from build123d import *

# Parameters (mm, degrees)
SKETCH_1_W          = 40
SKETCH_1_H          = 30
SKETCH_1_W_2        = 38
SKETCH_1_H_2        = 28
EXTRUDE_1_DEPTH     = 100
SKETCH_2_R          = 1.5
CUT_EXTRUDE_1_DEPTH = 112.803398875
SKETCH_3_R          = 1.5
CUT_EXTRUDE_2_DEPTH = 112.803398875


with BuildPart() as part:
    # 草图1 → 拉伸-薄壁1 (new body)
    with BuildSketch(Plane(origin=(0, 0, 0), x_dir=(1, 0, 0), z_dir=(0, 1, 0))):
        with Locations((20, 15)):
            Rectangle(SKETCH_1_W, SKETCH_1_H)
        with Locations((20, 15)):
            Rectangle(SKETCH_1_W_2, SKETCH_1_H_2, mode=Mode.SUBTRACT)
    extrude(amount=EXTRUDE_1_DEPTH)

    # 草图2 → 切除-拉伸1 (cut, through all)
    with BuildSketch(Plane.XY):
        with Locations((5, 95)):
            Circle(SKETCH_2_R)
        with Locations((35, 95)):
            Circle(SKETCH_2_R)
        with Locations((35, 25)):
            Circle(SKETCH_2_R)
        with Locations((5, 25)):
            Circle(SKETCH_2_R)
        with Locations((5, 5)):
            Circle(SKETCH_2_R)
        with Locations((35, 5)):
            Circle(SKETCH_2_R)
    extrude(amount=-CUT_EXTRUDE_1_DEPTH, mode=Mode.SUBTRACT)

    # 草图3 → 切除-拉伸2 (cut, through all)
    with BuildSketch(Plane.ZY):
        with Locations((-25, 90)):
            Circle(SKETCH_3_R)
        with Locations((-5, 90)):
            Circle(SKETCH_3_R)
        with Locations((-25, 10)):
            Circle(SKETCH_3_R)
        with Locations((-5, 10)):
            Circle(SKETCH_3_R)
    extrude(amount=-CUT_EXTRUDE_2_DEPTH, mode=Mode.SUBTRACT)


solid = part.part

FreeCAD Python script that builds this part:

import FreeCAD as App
import Part
import Sketcher

V = App.Vector

doc = App.newDocument("Part")
body = doc.addObject("PartDesign::Body", "Body")

# Sketch on XZ plane
sketch1 = body.newObject("Sketcher::SketchObject", "Sketch")
sketch1.AttachmentSupport = (doc.getObject("XZ_Plane"), [""])
sketch1.MapMode = "FlatFace"
sketch1.addGeometry(Part.LineSegment(V(0, -30, 0), V(0, 0, 0)), False)
sketch1.addGeometry(Part.LineSegment(V(0, 0, 0), V(40, 0, 0)), False)
sketch1.addGeometry(Part.LineSegment(V(40, 0, 0), V(40, -30, 0)), False)
sketch1.addGeometry(Part.LineSegment(V(40, -30, 0), V(0, -30, 0)), False)
sketch1.addGeometry(Part.LineSegment(V(39, -1, 0), V(1, -1, 0)), False)
sketch1.addGeometry(Part.LineSegment(V(1, -1, 0), V(1, -29, 0)), False)
sketch1.addGeometry(Part.LineSegment(V(1, -29, 0), V(39, -29, 0)), False)
sketch1.addGeometry(Part.LineSegment(V(39, -29, 0), V(39, -1, 0)), False)
sketch1.addConstraint(Sketcher.Constraint("Coincident", 0, 2, 1, 1))
sketch1.addConstraint(Sketcher.Constraint("Coincident", 1, 2, 2, 1))
sketch1.addConstraint(Sketcher.Constraint("Coincident", 2, 2, 3, 1))
sketch1.addConstraint(Sketcher.Constraint("Coincident", 3, 2, 0, 1))
sketch1.addConstraint(Sketcher.Constraint("Coincident", 4, 2, 5, 1))
sketch1.addConstraint(Sketcher.Constraint("Coincident", 5, 2, 6, 1))
sketch1.addConstraint(Sketcher.Constraint("Coincident", 6, 2, 7, 1))
sketch1.addConstraint(Sketcher.Constraint("Coincident", 7, 2, 4, 1))
sketch1.addConstraint(Sketcher.Constraint("Vertical", 0))
sketch1.addConstraint(Sketcher.Constraint("Horizontal", 1))
sketch1.addConstraint(Sketcher.Constraint("Vertical", 2))
sketch1.addConstraint(Sketcher.Constraint("Horizontal", 3))
sketch1.addConstraint(Sketcher.Constraint("Horizontal", 4))
sketch1.addConstraint(Sketcher.Constraint("Vertical", 5))
sketch1.addConstraint(Sketcher.Constraint("Horizontal", 6))
sketch1.addConstraint(Sketcher.Constraint("Vertical", 7))
sketch1.addConstraint(Sketcher.Constraint("Coincident", 0, 2, -1, 1))
sketch1.addConstraint(Sketcher.Constraint("DistanceX", 1, 1, 1, 2, 40.0))
sketch1.addConstraint(Sketcher.Constraint("DistanceX", 4, 2, 4, 1, 38.0))
sketch1.addConstraint(Sketcher.Constraint("DistanceY", 0, 1, 0, 2, 30.0))
sketch1.addConstraint(Sketcher.Constraint("DistanceY", 5, 2, 5, 1, 28.0))
sketch1.addConstraint(Sketcher.Constraint("DistanceX", -1, 1, 4, 2, 1.0))
sketch1.addConstraint(Sketcher.Constraint("DistanceY", 4, 2, -1, 1, 1.0))
pad1 = body.newObject("PartDesign::Pad", "Pad")
pad1.Profile = sketch1
pad1.Length = 100
pad1.Reversed = True

# Sketch on XY plane
sketch2 = body.newObject("Sketcher::SketchObject", "Sketch001")
sketch2.AttachmentSupport = (doc.getObject("XY_Plane"), [""])
sketch2.MapMode = "FlatFace"
sketch2.addGeometry(Part.Circle(V(5, 95, 0), V(0, 0, 1), 1.5), False)
sketch2.addGeometry(Part.Circle(V(35, 95, 0), V(0, 0, 1), 1.5), False)
sketch2.addGeometry(Part.Circle(V(35, 25, 0), V(0, 0, 1), 1.5), False)
sketch2.addGeometry(Part.Circle(V(5, 25, 0), V(0, 0, 1), 1.5), False)
sketch2.addGeometry(Part.Circle(V(5, 5, 0), V(0, 0, 1), 1.5), False)
sketch2.addGeometry(Part.Circle(V(35, 5, 0), V(0, 0, 1), 1.5), False)
sketch2.addConstraint(Sketcher.Constraint("Equal", 0, 1))
sketch2.addConstraint(Sketcher.Constraint("Equal", 1, 2))
sketch2.addConstraint(Sketcher.Constraint("Equal", 2, 3))
sketch2.addConstraint(Sketcher.Constraint("Equal", 3, 4))
sketch2.addConstraint(Sketcher.Constraint("Equal", 4, 5))
sketch2.addConstraint(Sketcher.Constraint("Horizontal", 0, 3, 1, 3))
sketch2.addConstraint(Sketcher.Constraint("Horizontal", 2, 3, 3, 3))
sketch2.addConstraint(Sketcher.Constraint("Horizontal", 4, 3, 5, 3))
sketch2.addConstraint(Sketcher.Constraint("Vertical", 1, 3, 2, 3))
sketch2.addConstraint(Sketcher.Constraint("Vertical", 0, 3, 3, 3))
sketch2.addConstraint(Sketcher.Constraint("Vertical", 3, 3, 4, 3))
sketch2.addConstraint(Sketcher.Constraint("Vertical", 2, 3, 5, 3))
sketch2.addConstraint(Sketcher.Constraint("Diameter", 0, 3.0))
sketch2.addConstraint(Sketcher.Constraint("DistanceX", -1, 1, 0, 3, 5.0))
sketch2.addConstraint(Sketcher.Constraint("DistanceY", -1, 1, 0, 3, 95.0))
sketch2.addConstraint(Sketcher.Constraint("DistanceX", -1, 1, 1, 3, 35.0))
sketch2.addConstraint(Sketcher.Constraint("DistanceY", -1, 1, 2, 3, 25.0))
sketch2.addConstraint(Sketcher.Constraint("DistanceY", -1, 1, 4, 3, 5.0))
pocket1 = body.newObject("PartDesign::Pocket", "Pocket")
pocket1.Profile = sketch2
pocket1.Type = "ThroughAll"

# Sketch on YZ plane
sketch3 = body.newObject("Sketcher::SketchObject", "Sketch002")
sketch3.AttachmentSupport = (doc.getObject("YZ_Plane"), [""])
sketch3.MapMode = "FlatFace"
sketch3.addGeometry(Part.Circle(V(90, -25, 0), V(0, 0, 1), 1.5), False)
sketch3.addGeometry(Part.Circle(V(90, -5, 0), V(0, 0, 1), 1.5), False)
sketch3.addGeometry(Part.Circle(V(10, -25, 0), V(0, 0, 1), 1.5), False)
sketch3.addGeometry(Part.Circle(V(10, -5, 0), V(0, 0, 1), 1.5), False)
sketch3.addConstraint(Sketcher.Constraint("Equal", 0, 1))
sketch3.addConstraint(Sketcher.Constraint("Equal", 1, 2))
sketch3.addConstraint(Sketcher.Constraint("Equal", 2, 3))
sketch3.addConstraint(Sketcher.Constraint("Horizontal", 0, 3, 2, 3))
sketch3.addConstraint(Sketcher.Constraint("Horizontal", 1, 3, 3, 3))
sketch3.addConstraint(Sketcher.Constraint("Vertical", 0, 3, 1, 3))
sketch3.addConstraint(Sketcher.Constraint("Vertical", 2, 3, 3, 3))
sketch3.addConstraint(Sketcher.Constraint("Diameter", 0, 3.0))
sketch3.addConstraint(Sketcher.Constraint("DistanceX", -1, 1, 0, 3, 90.0))
sketch3.addConstraint(Sketcher.Constraint("DistanceY", 0, 3, -1, 1, 25.0))
sketch3.addConstraint(Sketcher.Constraint("DistanceY", 1, 3, -1, 1, 5.0))
sketch3.addConstraint(Sketcher.Constraint("DistanceX", -1, 1, 2, 3, 10.0))
pocket2 = body.newObject("PartDesign::Pocket", "Pocket001")
pocket2.Profile = sketch3
pocket2.Type = "ThroughAll"
pocket2.Reversed = True

doc.recompute()
